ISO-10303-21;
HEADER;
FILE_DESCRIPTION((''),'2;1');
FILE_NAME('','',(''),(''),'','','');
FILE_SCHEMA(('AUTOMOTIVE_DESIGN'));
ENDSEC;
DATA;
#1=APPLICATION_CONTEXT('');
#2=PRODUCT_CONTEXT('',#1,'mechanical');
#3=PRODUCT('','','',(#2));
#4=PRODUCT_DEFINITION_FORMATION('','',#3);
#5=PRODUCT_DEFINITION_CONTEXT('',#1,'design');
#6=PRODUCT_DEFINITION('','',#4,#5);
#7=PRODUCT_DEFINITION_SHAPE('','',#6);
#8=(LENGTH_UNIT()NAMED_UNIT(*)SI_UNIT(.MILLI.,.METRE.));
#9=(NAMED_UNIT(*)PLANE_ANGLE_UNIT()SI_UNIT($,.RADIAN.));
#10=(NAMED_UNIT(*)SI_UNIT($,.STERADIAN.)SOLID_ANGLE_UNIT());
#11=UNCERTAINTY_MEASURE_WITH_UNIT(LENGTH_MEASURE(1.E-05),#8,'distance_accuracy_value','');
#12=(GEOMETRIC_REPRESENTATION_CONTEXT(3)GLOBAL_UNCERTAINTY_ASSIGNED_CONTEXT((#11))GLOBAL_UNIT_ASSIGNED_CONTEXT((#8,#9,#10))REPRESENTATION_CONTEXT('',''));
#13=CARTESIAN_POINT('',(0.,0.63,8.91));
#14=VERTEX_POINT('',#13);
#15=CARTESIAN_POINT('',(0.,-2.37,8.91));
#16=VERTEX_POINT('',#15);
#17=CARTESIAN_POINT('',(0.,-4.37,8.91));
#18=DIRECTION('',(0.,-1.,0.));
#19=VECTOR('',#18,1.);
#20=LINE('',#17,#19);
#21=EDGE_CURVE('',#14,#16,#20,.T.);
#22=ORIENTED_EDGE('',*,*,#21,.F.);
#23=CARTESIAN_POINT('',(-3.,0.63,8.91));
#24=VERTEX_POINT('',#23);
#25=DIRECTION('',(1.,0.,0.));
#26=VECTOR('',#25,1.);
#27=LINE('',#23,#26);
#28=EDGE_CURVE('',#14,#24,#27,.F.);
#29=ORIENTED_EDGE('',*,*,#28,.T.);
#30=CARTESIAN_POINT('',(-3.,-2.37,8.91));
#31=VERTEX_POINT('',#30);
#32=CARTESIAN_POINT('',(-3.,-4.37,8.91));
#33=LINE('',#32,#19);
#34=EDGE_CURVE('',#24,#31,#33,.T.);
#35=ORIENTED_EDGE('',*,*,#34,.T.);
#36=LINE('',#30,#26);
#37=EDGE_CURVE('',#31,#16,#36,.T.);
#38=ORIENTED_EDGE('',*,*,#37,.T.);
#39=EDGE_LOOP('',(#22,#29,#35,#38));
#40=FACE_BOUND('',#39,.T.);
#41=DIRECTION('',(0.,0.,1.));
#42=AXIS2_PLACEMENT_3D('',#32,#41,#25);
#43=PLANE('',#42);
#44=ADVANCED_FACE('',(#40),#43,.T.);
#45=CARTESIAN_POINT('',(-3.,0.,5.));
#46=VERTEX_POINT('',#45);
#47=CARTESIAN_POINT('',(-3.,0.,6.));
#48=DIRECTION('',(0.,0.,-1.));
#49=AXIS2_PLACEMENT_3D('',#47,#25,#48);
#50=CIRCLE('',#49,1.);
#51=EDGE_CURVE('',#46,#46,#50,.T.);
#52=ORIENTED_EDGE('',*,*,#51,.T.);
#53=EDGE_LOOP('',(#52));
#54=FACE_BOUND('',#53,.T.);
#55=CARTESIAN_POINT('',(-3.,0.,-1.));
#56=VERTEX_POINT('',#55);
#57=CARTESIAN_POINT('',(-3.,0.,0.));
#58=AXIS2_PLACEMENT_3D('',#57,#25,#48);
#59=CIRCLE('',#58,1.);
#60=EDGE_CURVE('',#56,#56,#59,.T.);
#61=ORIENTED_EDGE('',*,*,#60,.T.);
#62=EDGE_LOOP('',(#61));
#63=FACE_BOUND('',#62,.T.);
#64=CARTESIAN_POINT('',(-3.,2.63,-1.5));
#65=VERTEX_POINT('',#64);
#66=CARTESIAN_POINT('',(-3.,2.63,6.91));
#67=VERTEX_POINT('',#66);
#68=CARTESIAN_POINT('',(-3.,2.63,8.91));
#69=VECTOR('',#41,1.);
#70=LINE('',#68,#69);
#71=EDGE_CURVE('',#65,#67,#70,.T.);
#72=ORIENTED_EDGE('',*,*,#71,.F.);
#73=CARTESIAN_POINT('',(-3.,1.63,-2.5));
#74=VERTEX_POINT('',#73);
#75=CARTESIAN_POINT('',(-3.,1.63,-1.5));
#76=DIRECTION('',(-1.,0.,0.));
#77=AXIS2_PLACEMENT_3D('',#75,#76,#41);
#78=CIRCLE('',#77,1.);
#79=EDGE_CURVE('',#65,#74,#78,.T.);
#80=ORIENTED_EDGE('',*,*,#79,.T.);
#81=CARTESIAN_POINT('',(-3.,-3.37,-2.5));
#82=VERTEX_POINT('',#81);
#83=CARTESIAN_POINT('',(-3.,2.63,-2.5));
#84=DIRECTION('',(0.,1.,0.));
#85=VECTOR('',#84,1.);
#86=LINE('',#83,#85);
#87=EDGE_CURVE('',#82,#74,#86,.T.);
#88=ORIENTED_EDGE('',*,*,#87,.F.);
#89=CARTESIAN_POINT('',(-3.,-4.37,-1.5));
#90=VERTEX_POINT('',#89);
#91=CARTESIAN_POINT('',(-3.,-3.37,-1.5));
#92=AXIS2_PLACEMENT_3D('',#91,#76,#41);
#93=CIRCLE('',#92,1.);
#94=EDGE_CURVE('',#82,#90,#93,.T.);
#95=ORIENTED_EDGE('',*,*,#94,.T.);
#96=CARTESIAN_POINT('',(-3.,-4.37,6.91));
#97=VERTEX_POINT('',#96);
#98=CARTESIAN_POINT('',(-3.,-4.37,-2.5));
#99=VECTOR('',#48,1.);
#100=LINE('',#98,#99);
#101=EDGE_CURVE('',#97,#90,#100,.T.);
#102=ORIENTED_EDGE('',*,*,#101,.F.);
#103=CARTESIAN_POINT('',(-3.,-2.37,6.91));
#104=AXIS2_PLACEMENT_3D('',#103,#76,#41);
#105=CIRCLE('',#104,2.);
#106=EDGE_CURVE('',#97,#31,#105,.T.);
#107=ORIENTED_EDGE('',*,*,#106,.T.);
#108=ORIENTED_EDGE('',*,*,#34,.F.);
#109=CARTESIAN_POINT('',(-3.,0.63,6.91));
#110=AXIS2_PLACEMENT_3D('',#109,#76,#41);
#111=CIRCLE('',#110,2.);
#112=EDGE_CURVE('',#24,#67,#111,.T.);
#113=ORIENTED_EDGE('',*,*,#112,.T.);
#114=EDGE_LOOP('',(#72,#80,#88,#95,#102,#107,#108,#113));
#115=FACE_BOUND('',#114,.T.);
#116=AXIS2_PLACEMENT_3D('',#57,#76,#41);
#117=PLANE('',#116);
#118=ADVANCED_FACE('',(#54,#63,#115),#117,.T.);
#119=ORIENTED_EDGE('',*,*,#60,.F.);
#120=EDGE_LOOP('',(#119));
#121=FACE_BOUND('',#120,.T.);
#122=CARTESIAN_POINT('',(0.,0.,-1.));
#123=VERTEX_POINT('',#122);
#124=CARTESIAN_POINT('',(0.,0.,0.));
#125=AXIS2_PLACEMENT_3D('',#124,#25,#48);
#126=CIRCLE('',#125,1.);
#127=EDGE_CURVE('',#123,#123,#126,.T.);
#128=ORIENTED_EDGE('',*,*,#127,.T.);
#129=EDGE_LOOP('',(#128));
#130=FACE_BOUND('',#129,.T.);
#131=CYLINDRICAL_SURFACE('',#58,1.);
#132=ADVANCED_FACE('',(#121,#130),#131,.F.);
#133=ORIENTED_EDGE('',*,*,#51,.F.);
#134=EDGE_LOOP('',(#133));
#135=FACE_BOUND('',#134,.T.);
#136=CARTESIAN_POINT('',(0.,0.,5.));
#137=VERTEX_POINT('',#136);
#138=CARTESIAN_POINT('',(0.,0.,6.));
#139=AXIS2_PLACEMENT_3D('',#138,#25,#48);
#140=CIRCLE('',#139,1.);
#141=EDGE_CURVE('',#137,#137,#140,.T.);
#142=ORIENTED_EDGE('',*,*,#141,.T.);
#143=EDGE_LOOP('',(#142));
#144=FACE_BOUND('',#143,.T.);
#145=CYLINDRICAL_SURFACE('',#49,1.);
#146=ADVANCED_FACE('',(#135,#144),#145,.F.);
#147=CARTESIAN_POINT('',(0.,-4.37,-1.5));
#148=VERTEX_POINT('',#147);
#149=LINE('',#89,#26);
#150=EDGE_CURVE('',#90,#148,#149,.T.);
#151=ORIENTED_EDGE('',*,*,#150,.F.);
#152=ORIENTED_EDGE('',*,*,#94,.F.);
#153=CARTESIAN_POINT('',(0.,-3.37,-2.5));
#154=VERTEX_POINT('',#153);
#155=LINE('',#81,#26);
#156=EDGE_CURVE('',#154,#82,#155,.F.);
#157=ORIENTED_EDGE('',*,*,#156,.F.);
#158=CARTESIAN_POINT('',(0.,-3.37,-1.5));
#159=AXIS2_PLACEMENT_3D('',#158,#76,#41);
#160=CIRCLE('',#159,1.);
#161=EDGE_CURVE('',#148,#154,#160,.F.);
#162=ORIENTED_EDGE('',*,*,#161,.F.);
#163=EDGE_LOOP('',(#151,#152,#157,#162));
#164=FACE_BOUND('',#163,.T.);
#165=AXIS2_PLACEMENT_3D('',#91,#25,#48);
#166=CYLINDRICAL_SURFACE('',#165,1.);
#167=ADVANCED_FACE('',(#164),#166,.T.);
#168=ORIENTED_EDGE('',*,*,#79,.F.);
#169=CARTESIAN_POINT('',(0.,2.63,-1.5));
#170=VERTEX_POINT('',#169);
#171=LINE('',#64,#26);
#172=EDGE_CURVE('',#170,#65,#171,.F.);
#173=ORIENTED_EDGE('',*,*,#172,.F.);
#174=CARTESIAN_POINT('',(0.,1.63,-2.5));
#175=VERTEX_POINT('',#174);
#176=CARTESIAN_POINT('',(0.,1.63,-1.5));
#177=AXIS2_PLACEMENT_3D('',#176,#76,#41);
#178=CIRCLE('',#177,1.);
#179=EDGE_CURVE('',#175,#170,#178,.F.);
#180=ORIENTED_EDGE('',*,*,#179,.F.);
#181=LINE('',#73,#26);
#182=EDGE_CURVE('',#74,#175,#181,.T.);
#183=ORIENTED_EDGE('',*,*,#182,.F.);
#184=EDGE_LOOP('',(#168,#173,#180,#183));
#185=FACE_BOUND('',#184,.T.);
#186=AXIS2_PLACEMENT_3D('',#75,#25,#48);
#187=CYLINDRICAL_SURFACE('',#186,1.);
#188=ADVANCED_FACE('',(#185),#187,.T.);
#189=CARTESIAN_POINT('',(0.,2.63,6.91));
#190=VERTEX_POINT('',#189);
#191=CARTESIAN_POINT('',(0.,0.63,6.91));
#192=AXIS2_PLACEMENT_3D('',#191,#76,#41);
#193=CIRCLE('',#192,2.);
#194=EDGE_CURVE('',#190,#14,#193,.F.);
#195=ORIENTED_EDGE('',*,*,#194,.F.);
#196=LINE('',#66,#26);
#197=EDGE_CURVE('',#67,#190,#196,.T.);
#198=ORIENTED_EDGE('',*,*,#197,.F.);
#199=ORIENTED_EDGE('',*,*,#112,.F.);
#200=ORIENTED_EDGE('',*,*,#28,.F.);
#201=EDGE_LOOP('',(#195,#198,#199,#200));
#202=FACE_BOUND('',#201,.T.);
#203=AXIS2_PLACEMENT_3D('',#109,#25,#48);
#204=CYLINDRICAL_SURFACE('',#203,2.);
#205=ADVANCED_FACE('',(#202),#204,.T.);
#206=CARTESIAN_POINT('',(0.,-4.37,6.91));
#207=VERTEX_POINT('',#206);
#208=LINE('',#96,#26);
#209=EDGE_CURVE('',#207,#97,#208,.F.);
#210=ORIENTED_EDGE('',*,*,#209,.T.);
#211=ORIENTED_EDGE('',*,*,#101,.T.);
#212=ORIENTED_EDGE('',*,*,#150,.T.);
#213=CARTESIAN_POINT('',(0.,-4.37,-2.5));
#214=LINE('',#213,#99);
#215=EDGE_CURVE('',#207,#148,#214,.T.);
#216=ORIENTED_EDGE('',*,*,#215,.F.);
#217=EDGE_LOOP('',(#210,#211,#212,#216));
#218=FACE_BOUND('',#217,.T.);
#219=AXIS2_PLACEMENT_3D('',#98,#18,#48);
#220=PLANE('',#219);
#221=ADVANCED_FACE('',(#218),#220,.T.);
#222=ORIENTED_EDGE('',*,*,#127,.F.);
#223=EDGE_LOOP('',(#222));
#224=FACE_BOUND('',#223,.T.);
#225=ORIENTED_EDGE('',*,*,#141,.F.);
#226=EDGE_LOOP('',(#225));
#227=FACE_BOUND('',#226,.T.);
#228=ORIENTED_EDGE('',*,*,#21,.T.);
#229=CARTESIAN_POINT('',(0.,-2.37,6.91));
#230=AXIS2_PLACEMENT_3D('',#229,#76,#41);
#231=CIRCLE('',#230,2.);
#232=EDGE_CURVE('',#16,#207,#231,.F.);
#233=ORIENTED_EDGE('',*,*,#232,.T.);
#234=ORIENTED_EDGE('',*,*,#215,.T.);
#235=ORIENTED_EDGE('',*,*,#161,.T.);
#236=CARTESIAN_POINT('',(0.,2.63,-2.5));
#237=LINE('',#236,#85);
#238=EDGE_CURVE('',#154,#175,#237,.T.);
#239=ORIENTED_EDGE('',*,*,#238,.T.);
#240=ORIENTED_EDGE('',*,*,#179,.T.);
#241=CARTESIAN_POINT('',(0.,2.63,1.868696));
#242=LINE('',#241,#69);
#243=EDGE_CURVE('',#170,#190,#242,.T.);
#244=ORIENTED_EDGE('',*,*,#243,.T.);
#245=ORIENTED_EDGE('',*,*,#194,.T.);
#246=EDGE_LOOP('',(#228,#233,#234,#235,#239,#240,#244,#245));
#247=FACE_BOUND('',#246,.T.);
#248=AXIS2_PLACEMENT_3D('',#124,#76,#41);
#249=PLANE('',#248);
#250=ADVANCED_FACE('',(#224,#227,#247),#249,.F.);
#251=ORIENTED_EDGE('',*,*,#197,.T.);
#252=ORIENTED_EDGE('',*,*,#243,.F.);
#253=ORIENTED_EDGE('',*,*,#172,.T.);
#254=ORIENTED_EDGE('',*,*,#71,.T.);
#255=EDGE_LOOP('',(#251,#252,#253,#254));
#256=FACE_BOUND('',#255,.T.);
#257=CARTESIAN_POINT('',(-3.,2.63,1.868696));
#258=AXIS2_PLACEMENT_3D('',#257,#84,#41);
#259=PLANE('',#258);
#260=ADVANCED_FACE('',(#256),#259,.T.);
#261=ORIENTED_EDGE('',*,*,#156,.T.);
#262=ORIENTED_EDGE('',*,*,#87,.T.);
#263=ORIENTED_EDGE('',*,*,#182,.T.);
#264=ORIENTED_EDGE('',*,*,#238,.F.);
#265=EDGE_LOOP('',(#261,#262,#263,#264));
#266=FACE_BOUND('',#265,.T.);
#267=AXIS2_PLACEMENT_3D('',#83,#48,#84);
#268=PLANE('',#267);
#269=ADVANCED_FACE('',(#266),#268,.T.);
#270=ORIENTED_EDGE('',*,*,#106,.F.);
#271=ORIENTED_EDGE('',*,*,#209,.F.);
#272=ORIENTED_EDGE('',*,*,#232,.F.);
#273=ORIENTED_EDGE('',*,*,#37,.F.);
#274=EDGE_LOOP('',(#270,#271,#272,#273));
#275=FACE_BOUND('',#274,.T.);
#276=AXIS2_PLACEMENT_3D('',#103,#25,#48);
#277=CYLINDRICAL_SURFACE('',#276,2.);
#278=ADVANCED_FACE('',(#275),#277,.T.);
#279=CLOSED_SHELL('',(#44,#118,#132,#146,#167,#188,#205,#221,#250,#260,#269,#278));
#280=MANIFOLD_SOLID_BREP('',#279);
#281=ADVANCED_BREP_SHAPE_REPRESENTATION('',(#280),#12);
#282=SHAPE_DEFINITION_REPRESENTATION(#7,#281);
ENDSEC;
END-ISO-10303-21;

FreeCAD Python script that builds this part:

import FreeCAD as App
import Part
import Sketcher


def edges_at(feature, points):
    """Names of the edges that pass closest to the given points."""
    edges = feature.Shape.Edges
    near = lambda p: min(range(len(edges)), key=lambda i: edges[i].distToShape(Part.Vertex(*p))[0])
    return sorted({f"Edge{near(p) + 1}" for p in points})

doc = App.newDocument("Part")
params = doc.addObject("Spreadsheet::Sheet", "Params")
for row, (alias, value) in enumerate([
    ("sketch1_diameter", "2 mm"),
    ("sketch1_width", "7 mm"),
    ("sketch1_height", "11.41 mm"),
    ("pad1_length", "3 mm"),
    ("fillet_radius", "2 mm"),
    ("fillet2_radius", "1 mm"),
], start=1):
    params.set(f"A{row}", alias)
    params.set(f"B{row}", "=" + value)
    params.setAlias(f"B{row}", alias)

body = doc.addObject("PartDesign::Body", "Body")

sketch1 = body.newObject("Sketcher::SketchObject", "Sketch")
sketch1.AttachmentSupport = (doc.getObject("YZ_Plane"), [""])
sketch1.MapMode = "FlatFace"
sketch1.addGeometry(Part.LineSegment(App.Vector(2.6, -2.5, 0), App.Vector(2.6, 8.9, 0)), False)
sketch1.addGeometry(Part.LineSegment(App.Vector(2.6, 8.9, 0), App.Vector(-4.4, 8.9, 0)), False)
sketch1.addGeometry(Part.LineSegment(App.Vector(-4.4, 8.9, 0), App.Vector(-4.4, -2.5, 0)), False)
sketch1.addGeometry(Part.LineSegment(App.Vector(-4.4, -2.5, 0), App.Vector(2.6, -2.5, 0)), False)
sketch1.addGeometry(Part.Circle(App.Vector(0, 0, 0), App.Vector(0, 0, 1), 1), False)
sketch1.addGeometry(Part.Circle(App.Vector(0, 6, 0), App.Vector(0, 0, 1), 1), False)
sketch1.addConstraint(Sketcher.Constraint("Coincident", 0, 2, 1, 1))
sketch1.addConstraint(Sketcher.Constraint("Coincident", 1, 2, 2, 1))
sketch1.addConstraint(Sketcher.Constraint("Coincident", 2, 2, 3, 1))
sketch1.addConstraint(Sketcher.Constraint("Coincident", 3, 2, 0, 1))
sketch1.addConstraint(Sketcher.Constraint("Vertical", 0))
sketch1.addConstraint(Sketcher.Constraint("Horizontal", 1))
sketch1.addConstraint(Sketcher.Constraint("Vertical", 2))
sketch1.addConstraint(Sketcher.Constraint("Horizontal", 3))
sketch1.addConstraint(Sketcher.Constraint("Coincident", 4, 3, -1, 1))
sketch1.addConstraint(Sketcher.Constraint("Equal", 4, 5))
sketch1.addConstraint(Sketcher.Constraint("PointOnObject", 5, 3, -2))
sketch1.addConstraint(Sketcher.Constraint("Diameter", 4, 2.0))
sketch1.addConstraint(Sketcher.Constraint("DistanceX", 1, 2, 1, 1, 7.0))
sketch1.addConstraint(Sketcher.Constraint("DistanceY", -1, 1, 5, 3, 6.0))
sketch1.addConstraint(Sketcher.Constraint("DistanceY", 0, 1, 0, 2, 11.41))
sketch1.addConstraint(Sketcher.Constraint("DistanceY", 2, 2, -1, 1, 2.5))
sketch1.addConstraint(Sketcher.Constraint("DistanceX", -1, 1, 0, 2, 2.63))
sketch1.setExpression("Constraints[11]", "Params.sketch1_diameter")
sketch1.setExpression("Constraints[12]", "Params.sketch1_width")
sketch1.setExpression("Constraints[14]", "Params.sketch1_height")
pad1 = body.newObject("PartDesign::Pad", "Pad")
pad1.Profile = sketch1
pad1.setExpression("Length", "Params.pad1_length")
pad1.Reversed = True
doc.recompute()

fillet = body.newObject("PartDesign::Fillet", "Fillet")
fillet.Base = (pad1, edges_at(pad1, [(-1.5, -4.37, 8.91), (-1.5, 2.63, 8.91)]))
fillet.setExpression("Radius", "Params.fillet_radius")
doc.recompute()

fillet2 = body.newObject("PartDesign::Fillet", "Fillet001")
fillet2.Base = (fillet, edges_at(fillet, [(-1.5, 2.63, -2.5), (-1.5, -4.37, -2.5)]))
fillet2.setExpression("Radius", "Params.fillet2_radius")

doc.recompute()
